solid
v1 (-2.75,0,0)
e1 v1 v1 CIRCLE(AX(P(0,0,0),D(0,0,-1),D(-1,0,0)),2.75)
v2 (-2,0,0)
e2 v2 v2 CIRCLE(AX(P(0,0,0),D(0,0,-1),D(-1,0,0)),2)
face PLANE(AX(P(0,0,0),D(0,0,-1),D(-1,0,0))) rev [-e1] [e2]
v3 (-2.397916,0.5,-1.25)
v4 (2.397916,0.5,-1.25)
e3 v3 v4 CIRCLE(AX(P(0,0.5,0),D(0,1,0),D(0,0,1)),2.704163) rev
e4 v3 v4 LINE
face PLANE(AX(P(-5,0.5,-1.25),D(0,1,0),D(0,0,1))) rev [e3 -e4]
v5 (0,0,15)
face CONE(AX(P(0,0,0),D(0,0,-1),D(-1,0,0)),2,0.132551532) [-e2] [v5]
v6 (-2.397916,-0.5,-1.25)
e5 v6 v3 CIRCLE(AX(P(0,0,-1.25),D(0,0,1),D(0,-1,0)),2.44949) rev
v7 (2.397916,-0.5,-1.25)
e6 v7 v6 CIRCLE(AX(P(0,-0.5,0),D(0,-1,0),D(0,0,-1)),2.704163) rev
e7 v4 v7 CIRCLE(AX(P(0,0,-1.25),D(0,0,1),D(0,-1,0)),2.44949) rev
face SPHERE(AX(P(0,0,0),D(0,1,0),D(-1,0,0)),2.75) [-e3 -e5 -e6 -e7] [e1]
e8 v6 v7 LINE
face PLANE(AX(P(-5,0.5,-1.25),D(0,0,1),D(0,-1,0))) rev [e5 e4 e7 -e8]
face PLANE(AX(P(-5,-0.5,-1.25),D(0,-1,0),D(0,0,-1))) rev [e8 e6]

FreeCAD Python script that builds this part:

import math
import FreeCAD as App
import Part
import Sketcher
from FreeCAD import Vector

doc = App.newDocument("Part")
params = doc.addObject("Spreadsheet::Sheet", "Params")
for row, (alias, value) in enumerate([
    ("sketch1_width", "2 mm"),
    ("sketch1_height", "15 mm"),
    ("revolution_angle", "360 deg"),
    ("sketch2_radius", "2.75 mm"),
    ("revolution2_angle", "180 deg"),
    ("sketch3_width", "1 mm"),
    ("sketch3_height", "3 mm"),
    ("pocket1_length", "10 mm"),
], start=1):
    params.set(f"A{row}", alias)
    params.set(f"B{row}", "=" + value)
    params.setAlias(f"B{row}", alias)

body = doc.addObject("PartDesign::Body", "Body")

sketch1 = body.newObject("Sketcher::SketchObject", "Sketch")
sketch1.AttachmentSupport = (doc.getObject("XZ_Plane"), [""])
sketch1.MapMode = "FlatFace"
sketch1.addGeometry([
    Part.LineSegment(Vector(2, 0, 0), Vector(0, 0, 0)),
    Part.LineSegment(Vector(0, 0, 0), Vector(0, 15, 0)),
    Part.LineSegment(Vector(0, 15, 0), Vector(2, 0, 0)),
], False)
sketch1.addConstraint([
    Sketcher.Constraint("Coincident", 0, 2, 1, 1),
    Sketcher.Constraint("Coincident", 1, 2, 2, 1),
    Sketcher.Constraint("Coincident", 2, 2, 0, 1),
    Sketcher.Constraint("Horizontal", 0),
    Sketcher.Constraint("Vertical", 1),
    Sketcher.Constraint("Coincident", 0, 2, -1, 1),
    Sketcher.Constraint("DistanceX", 0, 2, 0, 1, 2.0),
    Sketcher.Constraint("DistanceY", 1, 1, 1, 2, 15.0),
])
sketch1.setExpression("Constraints[6]", "Params.sketch1_width")
sketch1.setExpression("Constraints[7]", "Params.sketch1_height")
revolution = body.newObject("PartDesign::Revolution", "Revolution")
revolution.Profile = sketch1
revolution.ReferenceAxis = (sketch1, ["V_Axis"])
revolution.setExpression("Angle", "Params.revolution_angle")

sketch2 = body.newObject("Sketcher::SketchObject", "Sketch001")
sketch2.AttachmentSupport = (doc.getObject("XY_Plane"), [""])
sketch2.MapMode = "FlatFace"
sketch2.addGeometry([
    Part.LineSegment(Vector(0, -2.75, 0), Vector(0, 2.75, 0)),
    Part.ArcOfCircle(Part.Circle(Vector(0, 0, 0), Vector(0, 0, 1), 2.75), math.radians(90), math.radians(270)),
], False)
sketch2.addConstraint([
    Sketcher.Constraint("Coincident", 0, 1, 1, 2),
    Sketcher.Constraint("Coincident", 1, 1, 0, 2),
    Sketcher.Constraint("Vertical", 0),
    Sketcher.Constraint("Coincident", 1, 3, -1, 1),
    Sketcher.Constraint("PointOnObject", 0, 1, -2),
    Sketcher.Constraint("Radius", 1, 2.75),
])
sketch2.setExpression("Constraints[5]", "Params.sketch2_radius")
revolution2 = body.newObject("PartDesign::Revolution", "Revolution001")
revolution2.Profile = sketch2
revolution2.ReferenceAxis = (sketch2, ["V_Axis"])
revolution2.setExpression("Angle", "Params.revolution2_angle")
revolution2.Reversed = True

sketch3 = body.newObject("Sketcher::SketchObject", "Sketch002")
sketch3.AttachmentSupport = (doc.getObject("YZ_Plane"), [""])
sketch3.MapMode = "FlatFace"
sketch3.addGeometry([
    Part.LineSegment(Vector(0.5, -1.25, 0), Vector(-0.5, -1.25, 0)),
    Part.LineSegment(Vector(-0.5, -1.25, 0), Vector(-0.5, -4.25, 0)),
    Part.LineSegment(Vector(-0.5, -4.25, 0), Vector(0.5, -4.25, 0)),
    Part.LineSegment(Vector(0.5, -4.25, 0), Vector(0.5, -1.25, 0)),
], False)
sketch3.addConstraint([
    Sketcher.Constraint("Coincident", 0, 2, 1, 1),
    Sketcher.Constraint("Coincident", 1, 2, 2, 1),
    Sketcher.Constraint("Coincident", 2, 2, 3, 1),
    Sketcher.Constraint("Coincident", 3, 2, 0, 1),
    Sketcher.Constraint("Horizontal", 0),
    Sketcher.Constraint("Vertical", 1),
    Sketcher.Constraint("Horizontal", 2),
    Sketcher.Constraint("Vertical", 3),
    Sketcher.Constraint("DistanceX", 0, 2, 0, 1, 1.0),
    Sketcher.Constraint("DistanceY", 1, 2, 1, 1, 3.0),
    Sketcher.Constraint("DistanceX", 0, 2, -1, 1, 0.5),
    Sketcher.Constraint("DistanceY", 0, 2, -1, 1, 1.25),
])
sketch3.setExpression("Constraints[8]", "Params.sketch3_width")
sketch3.setExpression("Constraints[9]", "Params.sketch3_height")
pocket1 = body.newObject("PartDesign::Pocket", "Pocket")
pocket1.Profile = sketch3
pocket1.setExpression("Length", "Params.pocket1_length")
pocket1.Midplane = True

doc.recompute()
